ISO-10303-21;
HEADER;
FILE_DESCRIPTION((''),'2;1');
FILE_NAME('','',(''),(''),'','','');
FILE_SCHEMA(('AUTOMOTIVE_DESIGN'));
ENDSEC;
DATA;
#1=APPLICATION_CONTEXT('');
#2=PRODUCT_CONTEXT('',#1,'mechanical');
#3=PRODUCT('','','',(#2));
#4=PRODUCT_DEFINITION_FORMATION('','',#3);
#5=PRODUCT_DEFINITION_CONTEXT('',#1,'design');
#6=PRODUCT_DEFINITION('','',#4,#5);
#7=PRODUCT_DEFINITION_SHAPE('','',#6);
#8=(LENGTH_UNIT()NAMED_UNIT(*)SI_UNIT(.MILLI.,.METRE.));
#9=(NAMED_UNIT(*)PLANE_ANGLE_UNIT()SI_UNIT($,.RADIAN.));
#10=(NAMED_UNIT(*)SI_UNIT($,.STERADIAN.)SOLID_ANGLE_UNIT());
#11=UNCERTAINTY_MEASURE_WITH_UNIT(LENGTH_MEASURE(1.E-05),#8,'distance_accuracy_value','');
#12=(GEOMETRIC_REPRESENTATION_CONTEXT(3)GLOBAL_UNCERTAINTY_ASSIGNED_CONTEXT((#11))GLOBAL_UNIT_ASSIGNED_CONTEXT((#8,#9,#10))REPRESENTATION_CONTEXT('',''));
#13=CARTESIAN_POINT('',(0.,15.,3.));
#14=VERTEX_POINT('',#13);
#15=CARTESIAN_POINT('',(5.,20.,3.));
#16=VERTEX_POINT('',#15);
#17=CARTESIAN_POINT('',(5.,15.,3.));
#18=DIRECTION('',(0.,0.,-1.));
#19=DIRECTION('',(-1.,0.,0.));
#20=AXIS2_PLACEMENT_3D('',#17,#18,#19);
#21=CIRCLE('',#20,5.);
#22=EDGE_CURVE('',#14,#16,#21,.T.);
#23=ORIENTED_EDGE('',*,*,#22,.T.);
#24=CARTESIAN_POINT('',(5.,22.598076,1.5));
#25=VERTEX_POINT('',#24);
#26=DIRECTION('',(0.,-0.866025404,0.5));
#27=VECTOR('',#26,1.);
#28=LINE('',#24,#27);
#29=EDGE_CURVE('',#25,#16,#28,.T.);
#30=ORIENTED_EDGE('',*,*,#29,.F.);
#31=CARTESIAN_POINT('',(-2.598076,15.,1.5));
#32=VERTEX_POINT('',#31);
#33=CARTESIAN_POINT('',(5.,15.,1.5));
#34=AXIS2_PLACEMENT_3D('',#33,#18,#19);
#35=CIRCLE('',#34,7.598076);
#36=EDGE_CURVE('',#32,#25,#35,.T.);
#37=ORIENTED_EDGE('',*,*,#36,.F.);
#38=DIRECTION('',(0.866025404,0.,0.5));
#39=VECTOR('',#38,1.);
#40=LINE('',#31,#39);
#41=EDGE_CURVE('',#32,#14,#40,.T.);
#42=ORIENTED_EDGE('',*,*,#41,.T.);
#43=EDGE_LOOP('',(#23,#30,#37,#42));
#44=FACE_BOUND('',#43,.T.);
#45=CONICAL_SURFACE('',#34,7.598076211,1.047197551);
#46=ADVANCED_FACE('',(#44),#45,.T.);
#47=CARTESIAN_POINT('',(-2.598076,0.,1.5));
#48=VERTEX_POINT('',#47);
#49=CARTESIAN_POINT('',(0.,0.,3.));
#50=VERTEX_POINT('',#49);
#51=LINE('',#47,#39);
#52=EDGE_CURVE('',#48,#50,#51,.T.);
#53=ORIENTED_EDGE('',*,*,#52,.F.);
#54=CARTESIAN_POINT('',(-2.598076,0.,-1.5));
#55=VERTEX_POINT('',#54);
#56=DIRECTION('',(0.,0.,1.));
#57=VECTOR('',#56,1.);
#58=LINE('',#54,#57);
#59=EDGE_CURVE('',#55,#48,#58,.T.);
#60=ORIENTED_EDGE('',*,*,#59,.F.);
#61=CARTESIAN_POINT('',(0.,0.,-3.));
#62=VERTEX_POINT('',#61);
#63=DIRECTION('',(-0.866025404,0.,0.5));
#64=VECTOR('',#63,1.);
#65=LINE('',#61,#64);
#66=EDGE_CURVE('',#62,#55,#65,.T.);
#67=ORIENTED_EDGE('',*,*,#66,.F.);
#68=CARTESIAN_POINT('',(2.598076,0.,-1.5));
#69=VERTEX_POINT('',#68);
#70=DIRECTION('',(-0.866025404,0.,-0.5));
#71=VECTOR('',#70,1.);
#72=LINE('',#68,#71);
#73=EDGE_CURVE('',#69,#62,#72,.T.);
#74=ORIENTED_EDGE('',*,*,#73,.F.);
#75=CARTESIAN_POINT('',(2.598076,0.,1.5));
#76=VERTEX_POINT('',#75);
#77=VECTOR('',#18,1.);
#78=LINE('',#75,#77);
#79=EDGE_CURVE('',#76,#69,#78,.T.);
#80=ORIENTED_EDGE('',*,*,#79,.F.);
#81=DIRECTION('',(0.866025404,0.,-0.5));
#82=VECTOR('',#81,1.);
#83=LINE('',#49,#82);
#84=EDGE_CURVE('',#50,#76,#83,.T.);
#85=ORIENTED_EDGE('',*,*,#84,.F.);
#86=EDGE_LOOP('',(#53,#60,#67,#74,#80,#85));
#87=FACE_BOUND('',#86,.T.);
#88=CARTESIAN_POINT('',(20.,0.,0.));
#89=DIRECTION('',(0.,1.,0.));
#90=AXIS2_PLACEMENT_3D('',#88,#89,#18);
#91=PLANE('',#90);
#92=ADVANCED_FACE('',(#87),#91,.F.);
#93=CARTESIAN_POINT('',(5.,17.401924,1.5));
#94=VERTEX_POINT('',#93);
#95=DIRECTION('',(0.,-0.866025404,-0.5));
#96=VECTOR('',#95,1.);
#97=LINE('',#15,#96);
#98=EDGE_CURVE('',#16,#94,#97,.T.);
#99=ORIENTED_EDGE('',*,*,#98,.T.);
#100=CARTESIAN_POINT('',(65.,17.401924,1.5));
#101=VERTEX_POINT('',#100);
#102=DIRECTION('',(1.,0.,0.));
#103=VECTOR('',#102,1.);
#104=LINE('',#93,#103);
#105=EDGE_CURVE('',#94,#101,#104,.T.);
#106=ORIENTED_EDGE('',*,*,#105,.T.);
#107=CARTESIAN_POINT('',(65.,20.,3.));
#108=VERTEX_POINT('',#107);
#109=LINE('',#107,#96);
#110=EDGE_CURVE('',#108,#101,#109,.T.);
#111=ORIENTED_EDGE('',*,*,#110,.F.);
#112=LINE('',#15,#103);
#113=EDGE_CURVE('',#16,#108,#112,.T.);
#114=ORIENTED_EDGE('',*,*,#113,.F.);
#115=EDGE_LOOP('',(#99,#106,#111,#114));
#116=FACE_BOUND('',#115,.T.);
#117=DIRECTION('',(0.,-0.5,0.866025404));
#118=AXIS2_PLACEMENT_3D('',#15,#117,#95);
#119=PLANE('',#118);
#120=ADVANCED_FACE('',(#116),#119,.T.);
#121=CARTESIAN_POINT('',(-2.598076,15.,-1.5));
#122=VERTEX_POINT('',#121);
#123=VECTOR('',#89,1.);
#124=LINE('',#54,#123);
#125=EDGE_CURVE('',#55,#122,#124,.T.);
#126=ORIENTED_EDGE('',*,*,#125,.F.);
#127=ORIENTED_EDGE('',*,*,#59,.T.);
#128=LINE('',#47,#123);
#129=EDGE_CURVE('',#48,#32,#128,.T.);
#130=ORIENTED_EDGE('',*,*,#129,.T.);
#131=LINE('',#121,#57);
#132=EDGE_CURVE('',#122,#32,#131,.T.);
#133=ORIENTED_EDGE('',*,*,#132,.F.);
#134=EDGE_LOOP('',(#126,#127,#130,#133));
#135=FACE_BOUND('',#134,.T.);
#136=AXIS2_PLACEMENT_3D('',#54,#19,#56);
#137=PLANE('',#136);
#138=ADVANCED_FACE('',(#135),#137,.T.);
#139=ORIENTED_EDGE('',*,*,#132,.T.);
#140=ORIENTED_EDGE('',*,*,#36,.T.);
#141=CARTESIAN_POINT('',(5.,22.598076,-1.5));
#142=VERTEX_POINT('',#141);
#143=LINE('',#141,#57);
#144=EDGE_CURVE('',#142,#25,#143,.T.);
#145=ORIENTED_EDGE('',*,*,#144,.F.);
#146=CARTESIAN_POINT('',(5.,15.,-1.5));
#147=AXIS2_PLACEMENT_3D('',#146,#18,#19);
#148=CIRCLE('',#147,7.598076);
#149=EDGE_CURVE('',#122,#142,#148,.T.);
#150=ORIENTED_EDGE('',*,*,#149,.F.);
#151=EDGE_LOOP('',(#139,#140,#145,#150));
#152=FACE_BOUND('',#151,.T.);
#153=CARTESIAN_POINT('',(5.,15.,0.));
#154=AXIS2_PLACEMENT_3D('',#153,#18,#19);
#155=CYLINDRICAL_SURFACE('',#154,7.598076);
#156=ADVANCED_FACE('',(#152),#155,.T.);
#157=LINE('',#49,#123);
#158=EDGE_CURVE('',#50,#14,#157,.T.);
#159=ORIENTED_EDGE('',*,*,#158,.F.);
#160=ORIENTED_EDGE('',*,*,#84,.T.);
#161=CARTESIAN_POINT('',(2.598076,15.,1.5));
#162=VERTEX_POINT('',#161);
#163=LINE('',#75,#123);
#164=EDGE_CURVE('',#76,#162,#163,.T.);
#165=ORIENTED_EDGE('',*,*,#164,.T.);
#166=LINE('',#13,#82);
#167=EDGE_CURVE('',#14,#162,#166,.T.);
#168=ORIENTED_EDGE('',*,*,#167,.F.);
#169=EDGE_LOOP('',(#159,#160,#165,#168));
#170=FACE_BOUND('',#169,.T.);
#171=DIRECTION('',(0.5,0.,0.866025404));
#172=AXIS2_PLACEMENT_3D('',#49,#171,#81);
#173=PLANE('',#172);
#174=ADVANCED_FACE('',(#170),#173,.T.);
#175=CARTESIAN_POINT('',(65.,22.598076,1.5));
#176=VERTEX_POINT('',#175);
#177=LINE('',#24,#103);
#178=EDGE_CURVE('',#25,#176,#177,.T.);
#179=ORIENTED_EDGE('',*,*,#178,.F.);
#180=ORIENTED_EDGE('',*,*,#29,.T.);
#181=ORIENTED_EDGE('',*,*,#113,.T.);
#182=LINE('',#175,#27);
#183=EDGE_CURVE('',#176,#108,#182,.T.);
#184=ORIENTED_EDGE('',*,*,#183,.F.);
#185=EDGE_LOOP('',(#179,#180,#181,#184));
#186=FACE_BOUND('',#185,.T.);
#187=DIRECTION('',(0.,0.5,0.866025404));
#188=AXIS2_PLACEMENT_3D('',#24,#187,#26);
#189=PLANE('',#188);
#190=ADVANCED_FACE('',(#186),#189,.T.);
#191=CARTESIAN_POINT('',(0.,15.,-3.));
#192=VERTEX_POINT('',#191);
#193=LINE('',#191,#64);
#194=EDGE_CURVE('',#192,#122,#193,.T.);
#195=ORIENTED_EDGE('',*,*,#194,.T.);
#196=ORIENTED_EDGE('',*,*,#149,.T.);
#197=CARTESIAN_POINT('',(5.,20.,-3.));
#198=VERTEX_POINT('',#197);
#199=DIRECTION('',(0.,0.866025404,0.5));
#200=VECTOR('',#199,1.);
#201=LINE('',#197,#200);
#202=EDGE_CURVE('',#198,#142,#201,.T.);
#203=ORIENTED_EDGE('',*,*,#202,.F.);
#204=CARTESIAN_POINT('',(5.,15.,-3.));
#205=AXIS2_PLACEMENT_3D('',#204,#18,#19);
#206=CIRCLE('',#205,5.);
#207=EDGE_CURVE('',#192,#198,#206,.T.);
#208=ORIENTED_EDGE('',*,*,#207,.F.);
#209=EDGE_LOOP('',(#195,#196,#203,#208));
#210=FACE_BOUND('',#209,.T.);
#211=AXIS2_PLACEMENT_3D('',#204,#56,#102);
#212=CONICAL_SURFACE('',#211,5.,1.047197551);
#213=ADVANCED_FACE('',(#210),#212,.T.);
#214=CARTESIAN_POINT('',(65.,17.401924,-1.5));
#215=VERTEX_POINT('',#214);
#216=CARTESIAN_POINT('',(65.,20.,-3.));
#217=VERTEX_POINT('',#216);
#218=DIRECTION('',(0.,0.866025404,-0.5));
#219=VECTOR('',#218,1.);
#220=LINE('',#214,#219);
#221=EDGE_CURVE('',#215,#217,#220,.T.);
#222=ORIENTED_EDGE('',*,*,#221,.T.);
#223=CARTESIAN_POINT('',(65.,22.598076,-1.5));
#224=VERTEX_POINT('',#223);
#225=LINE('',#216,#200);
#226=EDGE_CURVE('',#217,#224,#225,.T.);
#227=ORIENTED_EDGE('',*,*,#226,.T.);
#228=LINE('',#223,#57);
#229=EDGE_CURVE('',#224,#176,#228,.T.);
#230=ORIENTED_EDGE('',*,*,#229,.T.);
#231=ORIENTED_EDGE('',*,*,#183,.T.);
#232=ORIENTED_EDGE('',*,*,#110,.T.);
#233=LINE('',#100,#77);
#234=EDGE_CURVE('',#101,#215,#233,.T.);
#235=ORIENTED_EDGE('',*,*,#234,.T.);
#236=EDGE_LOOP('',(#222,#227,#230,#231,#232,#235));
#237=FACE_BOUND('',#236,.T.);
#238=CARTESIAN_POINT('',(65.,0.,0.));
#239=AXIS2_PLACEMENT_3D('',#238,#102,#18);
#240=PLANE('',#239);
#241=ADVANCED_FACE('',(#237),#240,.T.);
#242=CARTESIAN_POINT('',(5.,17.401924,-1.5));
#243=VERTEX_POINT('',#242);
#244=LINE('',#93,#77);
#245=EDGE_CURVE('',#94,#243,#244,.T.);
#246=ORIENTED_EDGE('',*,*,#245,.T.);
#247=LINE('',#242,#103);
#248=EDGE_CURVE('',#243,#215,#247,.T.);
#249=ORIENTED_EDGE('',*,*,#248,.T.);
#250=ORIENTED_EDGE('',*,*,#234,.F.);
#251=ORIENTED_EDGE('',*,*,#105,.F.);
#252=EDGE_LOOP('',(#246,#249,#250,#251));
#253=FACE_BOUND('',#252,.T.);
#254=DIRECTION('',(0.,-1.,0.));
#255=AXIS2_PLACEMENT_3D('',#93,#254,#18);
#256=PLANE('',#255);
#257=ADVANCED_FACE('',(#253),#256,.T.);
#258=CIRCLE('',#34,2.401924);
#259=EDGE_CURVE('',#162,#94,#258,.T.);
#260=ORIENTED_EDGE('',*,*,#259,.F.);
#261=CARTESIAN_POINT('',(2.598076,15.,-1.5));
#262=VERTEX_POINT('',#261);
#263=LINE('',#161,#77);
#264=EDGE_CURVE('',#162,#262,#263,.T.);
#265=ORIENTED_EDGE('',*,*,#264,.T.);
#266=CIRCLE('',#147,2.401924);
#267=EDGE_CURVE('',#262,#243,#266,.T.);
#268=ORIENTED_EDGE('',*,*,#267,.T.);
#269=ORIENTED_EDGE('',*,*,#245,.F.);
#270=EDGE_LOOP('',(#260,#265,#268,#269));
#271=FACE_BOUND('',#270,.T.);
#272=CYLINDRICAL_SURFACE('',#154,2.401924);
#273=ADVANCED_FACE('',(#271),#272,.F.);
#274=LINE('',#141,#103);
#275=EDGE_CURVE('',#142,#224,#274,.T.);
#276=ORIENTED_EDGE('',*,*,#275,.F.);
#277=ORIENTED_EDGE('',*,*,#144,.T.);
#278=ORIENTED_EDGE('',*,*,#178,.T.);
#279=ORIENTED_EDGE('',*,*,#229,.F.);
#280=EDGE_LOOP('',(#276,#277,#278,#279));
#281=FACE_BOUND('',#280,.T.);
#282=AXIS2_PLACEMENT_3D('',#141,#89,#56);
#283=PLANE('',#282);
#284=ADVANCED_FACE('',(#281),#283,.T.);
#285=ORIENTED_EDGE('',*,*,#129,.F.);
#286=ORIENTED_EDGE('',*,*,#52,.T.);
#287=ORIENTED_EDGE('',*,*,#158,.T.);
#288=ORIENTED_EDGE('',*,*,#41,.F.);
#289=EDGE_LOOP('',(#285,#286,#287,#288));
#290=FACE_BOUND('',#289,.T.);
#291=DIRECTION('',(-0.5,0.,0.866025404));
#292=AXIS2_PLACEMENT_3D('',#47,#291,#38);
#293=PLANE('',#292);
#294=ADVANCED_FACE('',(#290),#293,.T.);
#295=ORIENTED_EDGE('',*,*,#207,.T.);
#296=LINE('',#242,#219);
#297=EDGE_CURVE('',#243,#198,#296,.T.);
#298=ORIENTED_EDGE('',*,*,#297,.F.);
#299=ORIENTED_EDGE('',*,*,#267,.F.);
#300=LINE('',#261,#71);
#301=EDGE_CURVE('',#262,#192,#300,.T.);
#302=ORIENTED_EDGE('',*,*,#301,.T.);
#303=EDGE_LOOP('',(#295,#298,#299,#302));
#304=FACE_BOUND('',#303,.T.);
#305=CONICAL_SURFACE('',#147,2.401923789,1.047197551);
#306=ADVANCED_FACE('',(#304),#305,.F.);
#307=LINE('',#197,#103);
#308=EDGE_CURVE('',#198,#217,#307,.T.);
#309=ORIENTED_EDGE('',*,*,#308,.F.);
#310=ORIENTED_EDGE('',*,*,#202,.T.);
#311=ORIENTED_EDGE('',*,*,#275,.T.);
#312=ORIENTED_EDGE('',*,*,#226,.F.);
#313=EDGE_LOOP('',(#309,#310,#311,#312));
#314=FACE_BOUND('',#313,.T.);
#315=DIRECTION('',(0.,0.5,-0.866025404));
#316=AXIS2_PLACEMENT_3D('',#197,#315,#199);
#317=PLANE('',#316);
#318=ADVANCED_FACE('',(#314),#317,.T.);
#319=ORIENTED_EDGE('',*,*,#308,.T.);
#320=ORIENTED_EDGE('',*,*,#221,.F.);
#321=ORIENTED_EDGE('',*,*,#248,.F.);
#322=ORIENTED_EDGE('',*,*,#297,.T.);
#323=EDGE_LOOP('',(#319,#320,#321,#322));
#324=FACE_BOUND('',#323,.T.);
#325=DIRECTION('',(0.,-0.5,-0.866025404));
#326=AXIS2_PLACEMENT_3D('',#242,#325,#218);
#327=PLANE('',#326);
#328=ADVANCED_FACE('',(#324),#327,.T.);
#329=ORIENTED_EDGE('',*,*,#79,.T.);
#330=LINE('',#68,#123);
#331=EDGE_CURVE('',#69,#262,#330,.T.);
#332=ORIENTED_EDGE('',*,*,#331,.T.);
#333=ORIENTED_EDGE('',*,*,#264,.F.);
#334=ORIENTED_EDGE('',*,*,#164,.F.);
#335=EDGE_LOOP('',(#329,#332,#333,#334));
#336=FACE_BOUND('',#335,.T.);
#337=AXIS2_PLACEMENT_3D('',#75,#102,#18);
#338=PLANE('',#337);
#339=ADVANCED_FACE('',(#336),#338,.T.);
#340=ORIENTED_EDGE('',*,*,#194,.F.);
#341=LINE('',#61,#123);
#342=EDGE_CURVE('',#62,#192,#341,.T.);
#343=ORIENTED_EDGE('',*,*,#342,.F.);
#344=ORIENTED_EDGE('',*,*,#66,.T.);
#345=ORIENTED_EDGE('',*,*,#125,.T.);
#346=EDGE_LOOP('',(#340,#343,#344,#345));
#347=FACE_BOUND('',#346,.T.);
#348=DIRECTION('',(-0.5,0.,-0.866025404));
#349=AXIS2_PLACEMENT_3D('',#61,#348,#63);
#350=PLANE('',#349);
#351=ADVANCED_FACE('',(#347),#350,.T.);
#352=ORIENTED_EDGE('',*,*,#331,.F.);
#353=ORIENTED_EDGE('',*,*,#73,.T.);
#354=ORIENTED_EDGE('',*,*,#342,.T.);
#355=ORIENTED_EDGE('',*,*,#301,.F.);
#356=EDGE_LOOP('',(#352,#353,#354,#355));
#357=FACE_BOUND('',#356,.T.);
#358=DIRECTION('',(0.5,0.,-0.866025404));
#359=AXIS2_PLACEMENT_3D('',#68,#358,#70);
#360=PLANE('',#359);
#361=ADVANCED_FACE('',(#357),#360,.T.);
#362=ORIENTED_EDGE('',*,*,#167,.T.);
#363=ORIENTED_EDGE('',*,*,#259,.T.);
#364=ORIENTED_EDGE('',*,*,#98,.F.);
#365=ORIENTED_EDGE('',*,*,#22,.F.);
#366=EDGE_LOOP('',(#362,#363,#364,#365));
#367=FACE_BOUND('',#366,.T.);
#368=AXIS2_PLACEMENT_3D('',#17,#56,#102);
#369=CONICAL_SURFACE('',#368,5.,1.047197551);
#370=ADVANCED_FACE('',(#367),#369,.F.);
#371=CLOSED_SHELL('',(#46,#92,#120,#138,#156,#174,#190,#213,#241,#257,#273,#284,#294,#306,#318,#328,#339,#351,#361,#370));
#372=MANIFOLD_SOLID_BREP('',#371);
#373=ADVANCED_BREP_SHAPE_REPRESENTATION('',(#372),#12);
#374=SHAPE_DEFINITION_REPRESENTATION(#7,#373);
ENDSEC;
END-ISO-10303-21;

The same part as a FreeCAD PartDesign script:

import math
import FreeCAD as App
import Part
import Sketcher

V = App.Vector
Q = App.Units.Quantity

doc = App.newDocument("Part")
body = doc.addObject("PartDesign::Body", "Body")

# Sketch on YZ plane
sketch1 = body.newObject("Sketcher::SketchObject", "Sketch")
sketch1.AttachmentSupport = (doc.getObject("YZ_Plane"), [""])
sketch1.MapMode = "FlatFace"
sketch1.AttachmentOffset = App.Placement(V(0, 0, 65), App.Rotation())
sketch1.addGeometry([
    Part.LineSegment(V(20, -3, 0), V(22.598076, -1.5, 0)),  # 0
    Part.LineSegment(V(22.598076, -1.5, 0), V(22.598076, 1.5, 0)),  # 1
    Part.LineSegment(V(22.598076, 1.5, 0), V(20, 3, 0)),  # 2
    Part.LineSegment(V(20, 3, 0), V(17.401924, 1.5, 0)),  # 3
    Part.LineSegment(V(17.401924, 1.5, 0), V(17.401924, -1.5, 0)),  # 4
    Part.LineSegment(V(17.401924, -1.5, 0), V(20, -3, 0)),  # 5
], False)
sketch1.addConstraint([
    Sketcher.Constraint("Coincident", 0, 2, 1, 1),
    Sketcher.Constraint("Coincident", 1, 2, 2, 1),
    Sketcher.Constraint("Coincident", 2, 2, 3, 1),
    Sketcher.Constraint("Coincident", 3, 2, 4, 1),
    Sketcher.Constraint("Coincident", 4, 2, 5, 1),
    Sketcher.Constraint("Coincident", 5, 2, 0, 1),
    Sketcher.Constraint("Vertical", 1),
    Sketcher.Constraint("Vertical", 4),
    Sketcher.Constraint("Symmetric", 2, 2, 5, 2, -1),
    Sketcher.Constraint("Parallel", 0, 3),
    Sketcher.Constraint("Parallel", 2, 5),
    Sketcher.Constraint("Horizontal", 1, 2, 3, 2),
    Sketcher.Constraint("Horizontal", 0, 2, 4, 2),
    Sketcher.Constraint("DistanceY", 1, 1, 1, 2, 3.0),
    Sketcher.Constraint("Angle", 0, Q("30 deg")),
    Sketcher.Constraint("Distance", 0, 3.0),
    Sketcher.Constraint("DistanceX", -1, 1, 2, 2, 20.0),
])

# Sketch on XY plane
sketch2 = body.newObject("Sketcher::SketchObject", "Sketch001")
sketch2.AttachmentSupport = (doc.getObject("XY_Plane"), [""])
sketch2.MapMode = "FlatFace"
sketch2.addGeometry([
    Part.LineSegment(V(0, 0, 0), V(0, 15, 0)),
    Part.ArcOfCircle(Part.Circle(V(5, 15, 0), V(0, 0, 1), 5), math.radians(90), math.radians(180)),
    Part.LineSegment(V(5, 20, 0), V(65, 20, 0)),
], False)
sketch2.addConstraint([
    Sketcher.Constraint("Tangent", 0, 2, 1, 2),
    Sketcher.Constraint("Tangent", 1, 1, 2, 1),
    Sketcher.Constraint("Vertical", 0),
    Sketcher.Constraint("Horizontal", 2),
    Sketcher.Constraint("Coincident", 0, 1, -1, 1),
    Sketcher.Constraint("Radius", 1, 5.0),
    Sketcher.Constraint("DistanceX", 2, 1, 2, 2, 60.0),
    Sketcher.Constraint("DistanceY", 0, 1, 0, 2, 15.0),
])
doc.recompute()

additivepipe = body.newObject("PartDesign::AdditivePipe", "AdditivePipe")
additivepipe.Profile = sketch1
additivepipe.Spine = (sketch2, ["Edge1", "Edge2", "Edge3"])

doc.recompute()
